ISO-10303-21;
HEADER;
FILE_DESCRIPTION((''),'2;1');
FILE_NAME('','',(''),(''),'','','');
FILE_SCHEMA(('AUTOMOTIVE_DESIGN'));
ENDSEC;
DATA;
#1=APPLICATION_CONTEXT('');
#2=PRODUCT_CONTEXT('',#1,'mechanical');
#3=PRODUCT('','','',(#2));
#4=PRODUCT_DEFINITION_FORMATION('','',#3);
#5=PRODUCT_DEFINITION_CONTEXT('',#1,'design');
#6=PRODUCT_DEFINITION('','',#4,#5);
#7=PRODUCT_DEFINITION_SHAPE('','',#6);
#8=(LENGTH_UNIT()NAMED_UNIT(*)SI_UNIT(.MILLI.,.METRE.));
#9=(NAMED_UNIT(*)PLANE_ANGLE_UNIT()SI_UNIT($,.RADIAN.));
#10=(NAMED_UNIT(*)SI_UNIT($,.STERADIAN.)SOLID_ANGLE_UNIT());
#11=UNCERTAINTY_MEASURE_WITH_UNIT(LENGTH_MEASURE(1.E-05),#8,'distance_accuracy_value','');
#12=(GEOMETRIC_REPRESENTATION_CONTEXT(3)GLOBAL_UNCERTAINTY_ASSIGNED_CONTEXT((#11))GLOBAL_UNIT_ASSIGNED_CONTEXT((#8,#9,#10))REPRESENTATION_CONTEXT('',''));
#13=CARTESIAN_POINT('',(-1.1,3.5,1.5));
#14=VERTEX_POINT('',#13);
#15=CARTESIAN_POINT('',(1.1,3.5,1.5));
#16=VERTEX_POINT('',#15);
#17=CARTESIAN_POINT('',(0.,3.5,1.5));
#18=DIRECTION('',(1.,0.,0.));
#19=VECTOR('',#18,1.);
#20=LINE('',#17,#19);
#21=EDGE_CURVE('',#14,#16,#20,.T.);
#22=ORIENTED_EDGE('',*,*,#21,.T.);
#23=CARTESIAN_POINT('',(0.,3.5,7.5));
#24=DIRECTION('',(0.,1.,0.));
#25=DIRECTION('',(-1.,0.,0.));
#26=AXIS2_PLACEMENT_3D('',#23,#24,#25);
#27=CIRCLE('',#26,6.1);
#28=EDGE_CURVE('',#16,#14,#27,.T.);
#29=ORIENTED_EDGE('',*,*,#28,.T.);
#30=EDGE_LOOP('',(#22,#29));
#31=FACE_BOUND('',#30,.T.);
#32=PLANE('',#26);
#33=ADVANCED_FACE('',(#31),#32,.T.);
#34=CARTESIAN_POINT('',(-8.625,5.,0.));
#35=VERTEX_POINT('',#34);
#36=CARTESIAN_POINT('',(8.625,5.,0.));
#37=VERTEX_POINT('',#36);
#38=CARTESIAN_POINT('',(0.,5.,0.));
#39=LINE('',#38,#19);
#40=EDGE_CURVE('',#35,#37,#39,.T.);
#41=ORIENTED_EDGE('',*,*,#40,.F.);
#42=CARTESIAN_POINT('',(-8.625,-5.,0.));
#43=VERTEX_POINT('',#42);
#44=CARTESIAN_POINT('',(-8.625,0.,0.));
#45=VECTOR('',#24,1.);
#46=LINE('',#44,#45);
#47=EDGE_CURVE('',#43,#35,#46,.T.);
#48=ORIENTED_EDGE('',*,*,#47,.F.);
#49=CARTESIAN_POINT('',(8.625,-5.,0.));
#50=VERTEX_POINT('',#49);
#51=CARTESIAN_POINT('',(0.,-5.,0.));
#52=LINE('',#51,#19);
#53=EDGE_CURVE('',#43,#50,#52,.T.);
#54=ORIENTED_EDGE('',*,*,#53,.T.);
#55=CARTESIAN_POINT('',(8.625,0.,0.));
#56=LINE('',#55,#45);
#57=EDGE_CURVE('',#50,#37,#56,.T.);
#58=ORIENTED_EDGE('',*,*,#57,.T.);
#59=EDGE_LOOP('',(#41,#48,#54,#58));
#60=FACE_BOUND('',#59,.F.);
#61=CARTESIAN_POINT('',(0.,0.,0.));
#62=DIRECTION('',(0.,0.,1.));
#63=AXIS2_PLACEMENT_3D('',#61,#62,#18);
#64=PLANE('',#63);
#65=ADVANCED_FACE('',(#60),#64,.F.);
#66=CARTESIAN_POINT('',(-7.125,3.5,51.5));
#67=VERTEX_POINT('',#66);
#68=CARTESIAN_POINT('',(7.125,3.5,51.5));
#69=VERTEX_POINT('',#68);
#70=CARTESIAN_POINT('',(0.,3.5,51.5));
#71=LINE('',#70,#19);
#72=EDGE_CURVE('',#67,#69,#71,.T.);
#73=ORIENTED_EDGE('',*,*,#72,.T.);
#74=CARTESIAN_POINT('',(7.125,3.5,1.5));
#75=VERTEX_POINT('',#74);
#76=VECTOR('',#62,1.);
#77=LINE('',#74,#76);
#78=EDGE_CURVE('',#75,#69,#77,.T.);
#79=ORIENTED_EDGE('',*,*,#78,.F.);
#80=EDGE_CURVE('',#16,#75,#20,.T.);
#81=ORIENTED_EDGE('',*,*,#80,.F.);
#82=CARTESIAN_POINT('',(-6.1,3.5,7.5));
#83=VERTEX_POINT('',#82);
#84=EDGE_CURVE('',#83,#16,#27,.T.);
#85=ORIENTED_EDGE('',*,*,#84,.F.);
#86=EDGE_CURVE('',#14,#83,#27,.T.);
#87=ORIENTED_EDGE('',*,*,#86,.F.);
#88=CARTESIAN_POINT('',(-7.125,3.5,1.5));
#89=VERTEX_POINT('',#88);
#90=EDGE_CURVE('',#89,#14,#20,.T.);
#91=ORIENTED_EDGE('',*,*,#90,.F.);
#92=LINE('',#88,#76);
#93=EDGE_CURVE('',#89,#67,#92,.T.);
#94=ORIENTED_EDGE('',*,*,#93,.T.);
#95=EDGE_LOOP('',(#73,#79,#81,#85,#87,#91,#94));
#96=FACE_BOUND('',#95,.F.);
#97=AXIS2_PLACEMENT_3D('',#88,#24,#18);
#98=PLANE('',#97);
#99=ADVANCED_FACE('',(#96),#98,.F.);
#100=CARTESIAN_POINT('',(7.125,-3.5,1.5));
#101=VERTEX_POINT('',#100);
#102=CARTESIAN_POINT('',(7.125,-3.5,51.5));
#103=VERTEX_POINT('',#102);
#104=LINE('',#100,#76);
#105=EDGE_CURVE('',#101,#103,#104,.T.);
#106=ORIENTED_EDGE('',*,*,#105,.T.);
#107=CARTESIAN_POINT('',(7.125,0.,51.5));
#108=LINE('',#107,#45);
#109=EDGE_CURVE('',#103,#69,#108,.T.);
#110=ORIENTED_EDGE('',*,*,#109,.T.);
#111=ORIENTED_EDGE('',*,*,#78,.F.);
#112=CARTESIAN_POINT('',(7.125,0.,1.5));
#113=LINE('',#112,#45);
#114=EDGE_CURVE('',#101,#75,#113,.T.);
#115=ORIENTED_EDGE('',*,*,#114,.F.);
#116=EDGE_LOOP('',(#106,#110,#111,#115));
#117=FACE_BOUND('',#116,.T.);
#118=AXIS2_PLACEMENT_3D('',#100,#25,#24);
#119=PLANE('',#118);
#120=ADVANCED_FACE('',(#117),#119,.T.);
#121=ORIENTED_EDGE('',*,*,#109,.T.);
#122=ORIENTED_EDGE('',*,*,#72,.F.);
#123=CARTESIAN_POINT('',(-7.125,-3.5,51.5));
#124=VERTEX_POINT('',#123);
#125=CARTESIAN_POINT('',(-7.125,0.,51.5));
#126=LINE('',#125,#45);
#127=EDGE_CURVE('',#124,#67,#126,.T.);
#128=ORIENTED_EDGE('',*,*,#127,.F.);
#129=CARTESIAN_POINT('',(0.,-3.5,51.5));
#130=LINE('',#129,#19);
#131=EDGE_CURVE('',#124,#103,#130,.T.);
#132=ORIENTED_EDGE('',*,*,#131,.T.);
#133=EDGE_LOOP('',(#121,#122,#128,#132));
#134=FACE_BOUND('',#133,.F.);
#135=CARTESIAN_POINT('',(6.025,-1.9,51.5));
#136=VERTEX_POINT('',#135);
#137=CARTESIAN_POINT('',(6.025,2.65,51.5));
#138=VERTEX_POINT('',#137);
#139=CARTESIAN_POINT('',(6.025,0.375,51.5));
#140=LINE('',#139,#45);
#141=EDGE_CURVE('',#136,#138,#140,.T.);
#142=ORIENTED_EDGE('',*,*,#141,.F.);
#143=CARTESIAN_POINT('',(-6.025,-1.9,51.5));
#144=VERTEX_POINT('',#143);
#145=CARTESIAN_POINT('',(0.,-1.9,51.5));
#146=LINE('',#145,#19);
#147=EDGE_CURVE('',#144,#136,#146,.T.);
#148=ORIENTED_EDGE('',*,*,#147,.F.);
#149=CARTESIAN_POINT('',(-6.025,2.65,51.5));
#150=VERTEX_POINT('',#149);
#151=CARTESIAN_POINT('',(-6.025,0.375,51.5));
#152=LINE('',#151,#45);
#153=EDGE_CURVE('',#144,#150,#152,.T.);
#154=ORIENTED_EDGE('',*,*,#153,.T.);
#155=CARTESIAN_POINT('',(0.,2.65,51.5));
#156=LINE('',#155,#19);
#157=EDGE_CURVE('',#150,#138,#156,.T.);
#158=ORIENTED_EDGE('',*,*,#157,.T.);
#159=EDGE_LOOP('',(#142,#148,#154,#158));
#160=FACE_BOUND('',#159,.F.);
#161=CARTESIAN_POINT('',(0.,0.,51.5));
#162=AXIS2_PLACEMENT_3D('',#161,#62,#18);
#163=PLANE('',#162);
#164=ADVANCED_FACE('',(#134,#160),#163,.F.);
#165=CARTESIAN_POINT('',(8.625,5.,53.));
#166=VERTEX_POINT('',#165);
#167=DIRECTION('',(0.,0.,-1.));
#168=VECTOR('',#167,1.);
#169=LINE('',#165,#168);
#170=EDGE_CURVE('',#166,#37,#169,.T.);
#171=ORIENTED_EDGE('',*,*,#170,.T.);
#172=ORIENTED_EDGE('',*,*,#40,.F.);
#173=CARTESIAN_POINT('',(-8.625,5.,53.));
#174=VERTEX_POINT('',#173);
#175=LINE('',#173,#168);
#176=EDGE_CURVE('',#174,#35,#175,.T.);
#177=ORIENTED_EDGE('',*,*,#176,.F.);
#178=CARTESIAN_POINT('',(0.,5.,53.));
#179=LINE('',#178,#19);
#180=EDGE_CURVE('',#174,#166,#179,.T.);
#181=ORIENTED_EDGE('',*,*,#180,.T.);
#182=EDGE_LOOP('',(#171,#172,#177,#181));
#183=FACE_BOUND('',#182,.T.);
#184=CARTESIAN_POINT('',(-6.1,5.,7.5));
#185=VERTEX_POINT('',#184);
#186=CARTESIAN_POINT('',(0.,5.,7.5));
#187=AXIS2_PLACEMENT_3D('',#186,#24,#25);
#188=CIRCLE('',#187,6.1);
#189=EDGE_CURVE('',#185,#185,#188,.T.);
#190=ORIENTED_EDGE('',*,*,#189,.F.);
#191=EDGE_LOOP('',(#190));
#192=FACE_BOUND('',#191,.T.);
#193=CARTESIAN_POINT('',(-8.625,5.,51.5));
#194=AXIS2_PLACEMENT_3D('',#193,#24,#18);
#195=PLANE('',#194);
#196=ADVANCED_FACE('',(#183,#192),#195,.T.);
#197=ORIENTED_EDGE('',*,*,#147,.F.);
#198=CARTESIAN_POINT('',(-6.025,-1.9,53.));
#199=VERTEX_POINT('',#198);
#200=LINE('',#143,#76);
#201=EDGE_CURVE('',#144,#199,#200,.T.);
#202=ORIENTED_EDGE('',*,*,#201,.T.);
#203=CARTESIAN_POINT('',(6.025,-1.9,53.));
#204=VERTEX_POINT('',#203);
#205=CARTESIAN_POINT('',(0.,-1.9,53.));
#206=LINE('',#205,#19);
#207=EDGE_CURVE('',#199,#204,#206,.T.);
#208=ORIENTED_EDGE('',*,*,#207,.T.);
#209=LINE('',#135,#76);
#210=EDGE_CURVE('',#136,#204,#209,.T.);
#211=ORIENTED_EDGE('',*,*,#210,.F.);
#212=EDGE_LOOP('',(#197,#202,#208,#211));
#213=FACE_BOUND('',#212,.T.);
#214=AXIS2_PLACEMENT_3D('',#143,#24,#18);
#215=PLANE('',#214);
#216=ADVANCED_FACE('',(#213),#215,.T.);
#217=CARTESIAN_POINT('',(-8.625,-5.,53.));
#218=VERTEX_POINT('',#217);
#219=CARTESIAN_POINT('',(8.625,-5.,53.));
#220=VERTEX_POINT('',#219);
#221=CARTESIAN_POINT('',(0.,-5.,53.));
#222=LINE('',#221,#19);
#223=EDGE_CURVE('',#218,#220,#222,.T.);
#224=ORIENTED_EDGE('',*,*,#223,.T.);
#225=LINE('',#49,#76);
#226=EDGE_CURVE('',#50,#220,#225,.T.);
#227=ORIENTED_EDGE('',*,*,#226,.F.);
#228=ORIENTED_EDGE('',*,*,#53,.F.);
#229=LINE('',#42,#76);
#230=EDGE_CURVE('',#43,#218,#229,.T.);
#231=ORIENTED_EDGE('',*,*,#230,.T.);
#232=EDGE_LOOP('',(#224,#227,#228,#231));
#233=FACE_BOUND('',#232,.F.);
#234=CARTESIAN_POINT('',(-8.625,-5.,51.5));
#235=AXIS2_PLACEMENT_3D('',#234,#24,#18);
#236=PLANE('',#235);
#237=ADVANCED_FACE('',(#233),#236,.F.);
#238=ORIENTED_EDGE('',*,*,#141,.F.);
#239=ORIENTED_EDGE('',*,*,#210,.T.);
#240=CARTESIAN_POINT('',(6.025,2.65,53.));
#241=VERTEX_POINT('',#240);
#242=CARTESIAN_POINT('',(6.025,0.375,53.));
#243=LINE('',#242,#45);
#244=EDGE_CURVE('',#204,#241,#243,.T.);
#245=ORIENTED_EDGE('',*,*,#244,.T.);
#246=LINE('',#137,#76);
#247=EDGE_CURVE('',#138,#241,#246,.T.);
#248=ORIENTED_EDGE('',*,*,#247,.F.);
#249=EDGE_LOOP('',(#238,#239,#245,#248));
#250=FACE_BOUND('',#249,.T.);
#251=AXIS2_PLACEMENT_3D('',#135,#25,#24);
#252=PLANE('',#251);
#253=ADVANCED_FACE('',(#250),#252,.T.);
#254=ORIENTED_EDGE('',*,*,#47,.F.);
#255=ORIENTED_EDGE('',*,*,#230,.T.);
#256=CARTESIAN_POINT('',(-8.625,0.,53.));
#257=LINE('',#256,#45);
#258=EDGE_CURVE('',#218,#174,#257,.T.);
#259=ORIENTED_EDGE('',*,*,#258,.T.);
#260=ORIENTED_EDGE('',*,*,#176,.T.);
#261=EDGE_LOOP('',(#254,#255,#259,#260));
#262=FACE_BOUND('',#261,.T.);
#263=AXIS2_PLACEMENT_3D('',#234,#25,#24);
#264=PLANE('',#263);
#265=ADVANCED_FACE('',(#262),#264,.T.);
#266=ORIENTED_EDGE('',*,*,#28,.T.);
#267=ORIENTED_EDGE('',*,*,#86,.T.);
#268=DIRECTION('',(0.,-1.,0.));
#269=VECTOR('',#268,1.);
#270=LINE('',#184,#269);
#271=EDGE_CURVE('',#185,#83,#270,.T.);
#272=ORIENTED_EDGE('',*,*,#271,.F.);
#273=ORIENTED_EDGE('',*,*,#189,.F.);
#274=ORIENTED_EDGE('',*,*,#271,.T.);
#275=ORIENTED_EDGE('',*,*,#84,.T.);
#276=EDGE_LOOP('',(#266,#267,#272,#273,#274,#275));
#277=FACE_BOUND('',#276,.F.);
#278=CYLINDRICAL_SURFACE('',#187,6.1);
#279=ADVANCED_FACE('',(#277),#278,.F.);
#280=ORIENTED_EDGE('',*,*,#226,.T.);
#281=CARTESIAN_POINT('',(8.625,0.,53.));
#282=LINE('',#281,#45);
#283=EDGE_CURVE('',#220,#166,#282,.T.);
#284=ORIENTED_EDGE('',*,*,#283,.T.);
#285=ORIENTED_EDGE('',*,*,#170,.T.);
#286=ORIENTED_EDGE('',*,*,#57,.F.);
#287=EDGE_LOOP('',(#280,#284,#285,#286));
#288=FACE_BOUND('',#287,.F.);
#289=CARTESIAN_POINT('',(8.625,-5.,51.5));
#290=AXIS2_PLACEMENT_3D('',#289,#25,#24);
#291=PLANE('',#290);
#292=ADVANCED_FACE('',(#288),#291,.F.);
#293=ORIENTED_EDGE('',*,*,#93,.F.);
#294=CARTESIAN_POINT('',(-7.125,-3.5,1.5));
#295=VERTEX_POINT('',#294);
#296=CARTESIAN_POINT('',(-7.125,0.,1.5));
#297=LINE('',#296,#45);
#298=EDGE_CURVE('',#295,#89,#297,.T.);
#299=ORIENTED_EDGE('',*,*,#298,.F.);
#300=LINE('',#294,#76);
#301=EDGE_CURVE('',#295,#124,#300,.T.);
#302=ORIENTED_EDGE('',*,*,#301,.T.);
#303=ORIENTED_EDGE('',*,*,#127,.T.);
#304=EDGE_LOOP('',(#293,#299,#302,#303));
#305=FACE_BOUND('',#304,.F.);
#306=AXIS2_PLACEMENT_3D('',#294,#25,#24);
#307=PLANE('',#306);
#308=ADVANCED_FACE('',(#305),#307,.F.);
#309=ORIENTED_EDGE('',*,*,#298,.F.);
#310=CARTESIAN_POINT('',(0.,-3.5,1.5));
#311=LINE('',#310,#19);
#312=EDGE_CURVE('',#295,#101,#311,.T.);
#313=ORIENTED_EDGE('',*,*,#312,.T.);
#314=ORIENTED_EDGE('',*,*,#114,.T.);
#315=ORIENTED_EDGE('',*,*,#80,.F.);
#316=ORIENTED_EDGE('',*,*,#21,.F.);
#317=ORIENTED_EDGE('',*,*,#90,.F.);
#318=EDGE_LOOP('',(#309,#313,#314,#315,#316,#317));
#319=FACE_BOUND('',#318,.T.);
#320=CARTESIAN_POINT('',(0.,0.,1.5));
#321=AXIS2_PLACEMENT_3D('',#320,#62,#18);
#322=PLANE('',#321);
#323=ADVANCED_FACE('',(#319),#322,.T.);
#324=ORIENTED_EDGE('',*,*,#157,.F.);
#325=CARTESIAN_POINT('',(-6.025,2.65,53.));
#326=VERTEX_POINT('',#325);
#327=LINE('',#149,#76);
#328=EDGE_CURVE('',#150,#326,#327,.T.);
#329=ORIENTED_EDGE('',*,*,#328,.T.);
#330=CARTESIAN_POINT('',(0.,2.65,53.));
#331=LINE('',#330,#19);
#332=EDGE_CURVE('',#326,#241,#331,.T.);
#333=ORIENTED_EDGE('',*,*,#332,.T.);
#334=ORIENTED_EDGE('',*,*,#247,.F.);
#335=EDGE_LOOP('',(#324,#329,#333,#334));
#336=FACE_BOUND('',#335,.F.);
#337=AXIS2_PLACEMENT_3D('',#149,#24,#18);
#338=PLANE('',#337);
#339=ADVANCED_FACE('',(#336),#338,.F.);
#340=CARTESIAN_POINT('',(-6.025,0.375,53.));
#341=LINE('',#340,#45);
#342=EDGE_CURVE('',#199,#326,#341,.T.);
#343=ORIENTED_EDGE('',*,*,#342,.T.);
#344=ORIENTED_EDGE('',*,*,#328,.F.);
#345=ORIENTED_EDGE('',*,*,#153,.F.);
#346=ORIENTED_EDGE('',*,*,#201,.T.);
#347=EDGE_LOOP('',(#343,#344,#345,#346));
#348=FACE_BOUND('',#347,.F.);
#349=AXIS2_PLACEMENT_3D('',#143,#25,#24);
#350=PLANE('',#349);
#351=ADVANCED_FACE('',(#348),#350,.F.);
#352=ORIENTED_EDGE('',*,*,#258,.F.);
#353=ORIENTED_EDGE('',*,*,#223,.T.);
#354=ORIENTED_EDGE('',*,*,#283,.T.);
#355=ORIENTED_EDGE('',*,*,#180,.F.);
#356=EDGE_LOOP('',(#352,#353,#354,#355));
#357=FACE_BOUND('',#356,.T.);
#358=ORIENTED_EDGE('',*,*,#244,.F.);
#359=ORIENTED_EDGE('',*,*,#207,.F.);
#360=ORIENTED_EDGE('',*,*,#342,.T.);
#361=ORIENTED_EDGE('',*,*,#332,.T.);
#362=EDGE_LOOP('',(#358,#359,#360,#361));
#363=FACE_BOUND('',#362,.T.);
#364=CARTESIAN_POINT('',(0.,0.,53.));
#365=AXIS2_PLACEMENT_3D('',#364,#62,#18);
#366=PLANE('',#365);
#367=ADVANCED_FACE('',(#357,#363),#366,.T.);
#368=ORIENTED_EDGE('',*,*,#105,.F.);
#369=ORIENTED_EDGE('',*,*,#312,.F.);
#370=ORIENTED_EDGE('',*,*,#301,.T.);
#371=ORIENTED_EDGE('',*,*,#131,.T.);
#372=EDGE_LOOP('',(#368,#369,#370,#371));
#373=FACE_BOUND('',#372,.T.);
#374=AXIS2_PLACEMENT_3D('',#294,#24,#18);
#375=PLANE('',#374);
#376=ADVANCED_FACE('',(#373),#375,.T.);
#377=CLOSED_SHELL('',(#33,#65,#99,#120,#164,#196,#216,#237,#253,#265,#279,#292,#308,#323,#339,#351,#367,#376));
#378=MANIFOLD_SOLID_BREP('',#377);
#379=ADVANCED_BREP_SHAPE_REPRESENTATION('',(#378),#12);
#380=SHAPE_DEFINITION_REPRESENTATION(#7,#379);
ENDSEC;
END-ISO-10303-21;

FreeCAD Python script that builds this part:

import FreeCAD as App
import Part
import Sketcher
Q = App.Units.Quantity

doc = App.newDocument("Part")
params = doc.addObject("Spreadsheet::Sheet", "Params")
for row, (alias, value) in enumerate([
    ("sketch1_height", "10 mm"),
    ("sketch1_width", "17.25 mm"),
    ("pad1_length", "1.5 mm"),
    ("sketch2_height", "10 mm"),
    ("sketch2_height2", "7 mm"),
    ("sketch2_width", "17.25 mm"),
    ("sketch2_width2", "14.25 mm"),
    ("pad2_length", "50 mm"),
    ("sketch3_diameter", "12.2 mm"),
    ("pocket1_length", "1.5 mm"),
    ("sketch4_height", "10 mm"),
    ("sketch4_width", "17.25 mm"),
    ("sketch4_width2", "12.05 mm"),
    ("sketch4_height2", "4.55 mm"),
    ("pad3_length", "1.5 mm"),
], start=1):
    params.set(f"A{row}", alias)
    params.set(f"B{row}", "=" + value)
    params.setAlias(f"B{row}", alias)

body = doc.addObject("PartDesign::Body", "Body")

# Sketch on XY plane
sketch1 = body.newObject("Sketcher::SketchObject", "Sketch")
sketch1.AttachmentSupport = (doc.getObject("XY_Plane"), [""])
sketch1.MapMode = "FlatFace"
sketch1.addGeometry([
    Part.LineSegment(App.Vector(-9, 5, 0), App.Vector(-9, -5, 0)),
    Part.LineSegment(App.Vector(-9, -5, 0), App.Vector(9, -5, 0)),
    Part.LineSegment(App.Vector(9, -5, 0), App.Vector(9, 5, 0)),
    Part.LineSegment(App.Vector(9, 5, 0), App.Vector(-9, 5, 0)),
], False)
sketch1.addConstraint([
    Sketcher.Constraint("Coincident", 0, 2, 1, 1),
    Sketcher.Constraint("Coincident", 1, 2, 2, 1),
    Sketcher.Constraint("Coincident", 2, 2, 3, 1),
    Sketcher.Constraint("Coincident", 3, 2, 0, 1),
    Sketcher.Constraint("Vertical", 0),
    Sketcher.Constraint("Horizontal", 1),
    Sketcher.Constraint("Vertical", 2),
    Sketcher.Constraint("Horizontal", 3),
    Sketcher.Constraint("Symmetric", 0, 2, 2, 2, -1, 1),
    Sketcher.Constraint("DistanceY", 0, 2, 0, 1, Q("10 mm")),
    Sketcher.Constraint("DistanceX", 1, 1, 1, 2, Q("17.25 mm")),
])
sketch1.setExpression("Constraints[9]", "Params.sketch1_height")
sketch1.setExpression("Constraints[10]", "Params.sketch1_width")
pad1 = body.newObject("PartDesign::Pad", "Pad")
pad1.Profile = sketch1
pad1.setExpression("Length", "Params.pad1_length")

# Sketch on XY plane
sketch2 = body.newObject("Sketcher::SketchObject", "Sketch001")
sketch2.AttachmentSupport = (doc.getObject("XY_Plane"), [""])
sketch2.MapMode = "FlatFace"
sketch2.AttachmentOffset = App.Placement(App.Vector(0, 0, 1.5), App.Rotation())
sketch2.addGeometry([
    Part.LineSegment(App.Vector(-9, 5, 0), App.Vector(-9, -5, 0)),  # 0
    Part.LineSegment(App.Vector(-9, -5, 0), App.Vector(9, -5, 0)),  # 1
    Part.LineSegment(App.Vector(9, -5, 0), App.Vector(9, 5, 0)),  # 2
    Part.LineSegment(App.Vector(9, 5, 0), App.Vector(-9, 5, 0)),  # 3
    Part.LineSegment(App.Vector(7, -4, 0), App.Vector(-7, -4, 0)),  # 4
    Part.LineSegment(App.Vector(-7, -4, 0), App.Vector(-7, 4, 0)),  # 5
    Part.LineSegment(App.Vector(-7, 4, 0), App.Vector(7, 4, 0)),  # 6
    Part.LineSegment(App.Vector(7, 4, 0), App.Vector(7, -4, 0)),  # 7
], False)
sketch2.addConstraint([
    Sketcher.Constraint("Coincident", 0, 2, 1, 1),
    Sketcher.Constraint("Coincident", 1, 2, 2, 1),
    Sketcher.Constraint("Coincident", 2, 2, 3, 1),
    Sketcher.Constraint("Coincident", 3, 2, 0, 1),
    Sketcher.Constraint("Coincident", 4, 2, 5, 1),
    Sketcher.Constraint("Coincident", 5, 2, 6, 1),
    Sketcher.Constraint("Coincident", 6, 2, 7, 1),
    Sketcher.Constraint("Coincident", 7, 2, 4, 1),
    Sketcher.Constraint("Vertical", 0),
    Sketcher.Constraint("Horizontal", 1),
    Sketcher.Constraint("Vertical", 2),
    Sketcher.Constraint("Horizontal", 3),
    Sketcher.Constraint("Horizontal", 4),
    Sketcher.Constraint("Vertical", 5),
    Sketcher.Constraint("Horizontal", 6),
    Sketcher.Constraint("Vertical", 7),
    Sketcher.Constraint("Symmetric", 0, 2, 2, 2, -1, 1),
    Sketcher.Constraint("Symmetric", 4, 2, 6, 2, -1, 1),
    Sketcher.Constraint("DistanceY", 0, 2, 0, 1, Q("10 mm")),
    Sketcher.Constraint("DistanceY", 5, 1, 5, 2, Q("7 mm")),
    Sketcher.Constraint("DistanceX", 1, 1, 1, 2, Q("17.25 mm")),
    Sketcher.Constraint("DistanceX", 4, 2, 4, 1, Q("14.25 mm")),
])
sketch2.setExpression("Constraints[18]", "Params.sketch2_height")
sketch2.setExpression("Constraints[19]", "Params.sketch2_height2")
sketch2.setExpression("Constraints[20]", "Params.sketch2_width")
sketch2.setExpression("Constraints[21]", "Params.sketch2_width2")
pad2 = body.newObject("PartDesign::Pad", "Pad001")
pad2.Profile = sketch2
pad2.setExpression("Length", "Params.pad2_length")

# Sketch on XZ plane
sketch3 = body.newObject("Sketcher::SketchObject", "Sketch002")
sketch3.AttachmentSupport = (doc.getObject("XZ_Plane"), [""])
sketch3.MapMode = "FlatFace"
sketch3.AttachmentOffset = App.Placement(App.Vector(0, 0, -5), App.Rotation())
sketch3.addGeometry(Part.Circle(App.Vector(0, 8, 0), App.Vector(0, 0, 1), 6), False)
sketch3.addConstraint([
    Sketcher.Constraint("PointOnObject", 0, 3, -2),
    Sketcher.Constraint("Diameter", 0, Q("12.2 mm")),
    Sketcher.Constraint("DistanceY", -1, 1, 0, 3, Q("7.5 mm")),
])
sketch3.setExpression("Constraints[1]", "Params.sketch3_diameter")
pocket1 = body.newObject("PartDesign::Pocket", "Pocket")
pocket1.Profile = sketch3
pocket1.setExpression("Length", "Params.pocket1_length")
pocket1.Reversed = True

# Sketch on XY plane
sketch4 = body.newObject("Sketcher::SketchObject", "Sketch003")
sketch4.AttachmentSupport = (doc.getObject("XY_Plane"), [""])
sketch4.MapMode = "FlatFace"
sketch4.AttachmentOffset = App.Placement(App.Vector(0, 0, 51.5), App.Rotation())
sketch4.addGeometry([
    Part.LineSegment(App.Vector(-8.6, 5, 0), App.Vector(-8.6, -5, 0)),  # 0
    Part.LineSegment(App.Vector(-8.6, -5, 0), App.Vector(8.6, -5, 0)),  # 1
    Part.LineSegment(App.Vector(8.6, -5, 0), App.Vector(8.6, 5, 0)),  # 2
    Part.LineSegment(App.Vector(8.6, 5, 0), App.Vector(-8.6, 5, 0)),  # 3
    Part.LineSegment(App.Vector(6, -1.9, 0), App.Vector(-6, -1.9, 0)),  # 4
    Part.LineSegment(App.Vector(-6, -1.9, 0), App.Vector(-6, 2.6, 0)),  # 5
    Part.LineSegment(App.Vector(-6, 2.6, 0), App.Vector(6, 2.6, 0)),  # 6
    Part.LineSegment(App.Vector(6, 2.6, 0), App.Vector(6, -1.9, 0)),  # 7
], False)
sketch4.addConstraint([
    Sketcher.Constraint("Coincident", 0, 2, 1, 1),
    Sketcher.Constraint("Coincident", 1, 2, 2, 1),
    Sketcher.Constraint("Coincident", 2, 2, 3, 1),
    Sketcher.Constraint("Coincident", 3, 2, 0, 1),
    Sketcher.Constraint("Coincident", 4, 2, 5, 1),
    Sketcher.Constraint("Coincident", 5, 2, 6, 1),
    Sketcher.Constraint("Coincident", 6, 2, 7, 1),
    Sketcher.Constraint("Coincident", 7, 2, 4, 1),
    Sketcher.Constraint("Vertical", 0),
    Sketcher.Constraint("Horizontal", 1),
    Sketcher.Constraint("Vertical", 2),
    Sketcher.Constraint("Horizontal", 3),
    Sketcher.Constraint("Horizontal", 4),
    Sketcher.Constraint("Vertical", 5),
    Sketcher.Constraint("Horizontal", 6),
    Sketcher.Constraint("Vertical", 7),
    Sketcher.Constraint("Symmetric", 0, 2, 2, 2, -1, 1),
    Sketcher.Constraint("DistanceY", 0, 2, 0, 1, Q("10 mm")),
    Sketcher.Constraint("DistanceX", 1, 1, 1, 2, Q("17.25 mm")),
    Sketcher.Constraint("DistanceX", 4, 2, 4, 1, Q("12.05 mm")),
    Sketcher.Constraint("DistanceY", 5, 1, 5, 2, Q("4.55 mm")),
    Sketcher.Constraint("DistanceY", 4, 2, -1, 1, Q("1.9 mm")),
    Sketcher.Constraint("DistanceX", 0, 2, 4, 2, Q("2.6 mm")),
])
sketch4.setExpression("Constraints[17]", "Params.sketch4_height")
sketch4.setExpression("Constraints[18]", "Params.sketch4_width")
sketch4.setExpression("Constraints[19]", "Params.sketch4_width2")
sketch4.setExpression("Constraints[20]", "Params.sketch4_height2")
pad3 = body.newObject("PartDesign::Pad", "Pad002")
pad3.Profile = sketch4
pad3.setExpression("Length", "Params.pad3_length")

doc.recompute()
